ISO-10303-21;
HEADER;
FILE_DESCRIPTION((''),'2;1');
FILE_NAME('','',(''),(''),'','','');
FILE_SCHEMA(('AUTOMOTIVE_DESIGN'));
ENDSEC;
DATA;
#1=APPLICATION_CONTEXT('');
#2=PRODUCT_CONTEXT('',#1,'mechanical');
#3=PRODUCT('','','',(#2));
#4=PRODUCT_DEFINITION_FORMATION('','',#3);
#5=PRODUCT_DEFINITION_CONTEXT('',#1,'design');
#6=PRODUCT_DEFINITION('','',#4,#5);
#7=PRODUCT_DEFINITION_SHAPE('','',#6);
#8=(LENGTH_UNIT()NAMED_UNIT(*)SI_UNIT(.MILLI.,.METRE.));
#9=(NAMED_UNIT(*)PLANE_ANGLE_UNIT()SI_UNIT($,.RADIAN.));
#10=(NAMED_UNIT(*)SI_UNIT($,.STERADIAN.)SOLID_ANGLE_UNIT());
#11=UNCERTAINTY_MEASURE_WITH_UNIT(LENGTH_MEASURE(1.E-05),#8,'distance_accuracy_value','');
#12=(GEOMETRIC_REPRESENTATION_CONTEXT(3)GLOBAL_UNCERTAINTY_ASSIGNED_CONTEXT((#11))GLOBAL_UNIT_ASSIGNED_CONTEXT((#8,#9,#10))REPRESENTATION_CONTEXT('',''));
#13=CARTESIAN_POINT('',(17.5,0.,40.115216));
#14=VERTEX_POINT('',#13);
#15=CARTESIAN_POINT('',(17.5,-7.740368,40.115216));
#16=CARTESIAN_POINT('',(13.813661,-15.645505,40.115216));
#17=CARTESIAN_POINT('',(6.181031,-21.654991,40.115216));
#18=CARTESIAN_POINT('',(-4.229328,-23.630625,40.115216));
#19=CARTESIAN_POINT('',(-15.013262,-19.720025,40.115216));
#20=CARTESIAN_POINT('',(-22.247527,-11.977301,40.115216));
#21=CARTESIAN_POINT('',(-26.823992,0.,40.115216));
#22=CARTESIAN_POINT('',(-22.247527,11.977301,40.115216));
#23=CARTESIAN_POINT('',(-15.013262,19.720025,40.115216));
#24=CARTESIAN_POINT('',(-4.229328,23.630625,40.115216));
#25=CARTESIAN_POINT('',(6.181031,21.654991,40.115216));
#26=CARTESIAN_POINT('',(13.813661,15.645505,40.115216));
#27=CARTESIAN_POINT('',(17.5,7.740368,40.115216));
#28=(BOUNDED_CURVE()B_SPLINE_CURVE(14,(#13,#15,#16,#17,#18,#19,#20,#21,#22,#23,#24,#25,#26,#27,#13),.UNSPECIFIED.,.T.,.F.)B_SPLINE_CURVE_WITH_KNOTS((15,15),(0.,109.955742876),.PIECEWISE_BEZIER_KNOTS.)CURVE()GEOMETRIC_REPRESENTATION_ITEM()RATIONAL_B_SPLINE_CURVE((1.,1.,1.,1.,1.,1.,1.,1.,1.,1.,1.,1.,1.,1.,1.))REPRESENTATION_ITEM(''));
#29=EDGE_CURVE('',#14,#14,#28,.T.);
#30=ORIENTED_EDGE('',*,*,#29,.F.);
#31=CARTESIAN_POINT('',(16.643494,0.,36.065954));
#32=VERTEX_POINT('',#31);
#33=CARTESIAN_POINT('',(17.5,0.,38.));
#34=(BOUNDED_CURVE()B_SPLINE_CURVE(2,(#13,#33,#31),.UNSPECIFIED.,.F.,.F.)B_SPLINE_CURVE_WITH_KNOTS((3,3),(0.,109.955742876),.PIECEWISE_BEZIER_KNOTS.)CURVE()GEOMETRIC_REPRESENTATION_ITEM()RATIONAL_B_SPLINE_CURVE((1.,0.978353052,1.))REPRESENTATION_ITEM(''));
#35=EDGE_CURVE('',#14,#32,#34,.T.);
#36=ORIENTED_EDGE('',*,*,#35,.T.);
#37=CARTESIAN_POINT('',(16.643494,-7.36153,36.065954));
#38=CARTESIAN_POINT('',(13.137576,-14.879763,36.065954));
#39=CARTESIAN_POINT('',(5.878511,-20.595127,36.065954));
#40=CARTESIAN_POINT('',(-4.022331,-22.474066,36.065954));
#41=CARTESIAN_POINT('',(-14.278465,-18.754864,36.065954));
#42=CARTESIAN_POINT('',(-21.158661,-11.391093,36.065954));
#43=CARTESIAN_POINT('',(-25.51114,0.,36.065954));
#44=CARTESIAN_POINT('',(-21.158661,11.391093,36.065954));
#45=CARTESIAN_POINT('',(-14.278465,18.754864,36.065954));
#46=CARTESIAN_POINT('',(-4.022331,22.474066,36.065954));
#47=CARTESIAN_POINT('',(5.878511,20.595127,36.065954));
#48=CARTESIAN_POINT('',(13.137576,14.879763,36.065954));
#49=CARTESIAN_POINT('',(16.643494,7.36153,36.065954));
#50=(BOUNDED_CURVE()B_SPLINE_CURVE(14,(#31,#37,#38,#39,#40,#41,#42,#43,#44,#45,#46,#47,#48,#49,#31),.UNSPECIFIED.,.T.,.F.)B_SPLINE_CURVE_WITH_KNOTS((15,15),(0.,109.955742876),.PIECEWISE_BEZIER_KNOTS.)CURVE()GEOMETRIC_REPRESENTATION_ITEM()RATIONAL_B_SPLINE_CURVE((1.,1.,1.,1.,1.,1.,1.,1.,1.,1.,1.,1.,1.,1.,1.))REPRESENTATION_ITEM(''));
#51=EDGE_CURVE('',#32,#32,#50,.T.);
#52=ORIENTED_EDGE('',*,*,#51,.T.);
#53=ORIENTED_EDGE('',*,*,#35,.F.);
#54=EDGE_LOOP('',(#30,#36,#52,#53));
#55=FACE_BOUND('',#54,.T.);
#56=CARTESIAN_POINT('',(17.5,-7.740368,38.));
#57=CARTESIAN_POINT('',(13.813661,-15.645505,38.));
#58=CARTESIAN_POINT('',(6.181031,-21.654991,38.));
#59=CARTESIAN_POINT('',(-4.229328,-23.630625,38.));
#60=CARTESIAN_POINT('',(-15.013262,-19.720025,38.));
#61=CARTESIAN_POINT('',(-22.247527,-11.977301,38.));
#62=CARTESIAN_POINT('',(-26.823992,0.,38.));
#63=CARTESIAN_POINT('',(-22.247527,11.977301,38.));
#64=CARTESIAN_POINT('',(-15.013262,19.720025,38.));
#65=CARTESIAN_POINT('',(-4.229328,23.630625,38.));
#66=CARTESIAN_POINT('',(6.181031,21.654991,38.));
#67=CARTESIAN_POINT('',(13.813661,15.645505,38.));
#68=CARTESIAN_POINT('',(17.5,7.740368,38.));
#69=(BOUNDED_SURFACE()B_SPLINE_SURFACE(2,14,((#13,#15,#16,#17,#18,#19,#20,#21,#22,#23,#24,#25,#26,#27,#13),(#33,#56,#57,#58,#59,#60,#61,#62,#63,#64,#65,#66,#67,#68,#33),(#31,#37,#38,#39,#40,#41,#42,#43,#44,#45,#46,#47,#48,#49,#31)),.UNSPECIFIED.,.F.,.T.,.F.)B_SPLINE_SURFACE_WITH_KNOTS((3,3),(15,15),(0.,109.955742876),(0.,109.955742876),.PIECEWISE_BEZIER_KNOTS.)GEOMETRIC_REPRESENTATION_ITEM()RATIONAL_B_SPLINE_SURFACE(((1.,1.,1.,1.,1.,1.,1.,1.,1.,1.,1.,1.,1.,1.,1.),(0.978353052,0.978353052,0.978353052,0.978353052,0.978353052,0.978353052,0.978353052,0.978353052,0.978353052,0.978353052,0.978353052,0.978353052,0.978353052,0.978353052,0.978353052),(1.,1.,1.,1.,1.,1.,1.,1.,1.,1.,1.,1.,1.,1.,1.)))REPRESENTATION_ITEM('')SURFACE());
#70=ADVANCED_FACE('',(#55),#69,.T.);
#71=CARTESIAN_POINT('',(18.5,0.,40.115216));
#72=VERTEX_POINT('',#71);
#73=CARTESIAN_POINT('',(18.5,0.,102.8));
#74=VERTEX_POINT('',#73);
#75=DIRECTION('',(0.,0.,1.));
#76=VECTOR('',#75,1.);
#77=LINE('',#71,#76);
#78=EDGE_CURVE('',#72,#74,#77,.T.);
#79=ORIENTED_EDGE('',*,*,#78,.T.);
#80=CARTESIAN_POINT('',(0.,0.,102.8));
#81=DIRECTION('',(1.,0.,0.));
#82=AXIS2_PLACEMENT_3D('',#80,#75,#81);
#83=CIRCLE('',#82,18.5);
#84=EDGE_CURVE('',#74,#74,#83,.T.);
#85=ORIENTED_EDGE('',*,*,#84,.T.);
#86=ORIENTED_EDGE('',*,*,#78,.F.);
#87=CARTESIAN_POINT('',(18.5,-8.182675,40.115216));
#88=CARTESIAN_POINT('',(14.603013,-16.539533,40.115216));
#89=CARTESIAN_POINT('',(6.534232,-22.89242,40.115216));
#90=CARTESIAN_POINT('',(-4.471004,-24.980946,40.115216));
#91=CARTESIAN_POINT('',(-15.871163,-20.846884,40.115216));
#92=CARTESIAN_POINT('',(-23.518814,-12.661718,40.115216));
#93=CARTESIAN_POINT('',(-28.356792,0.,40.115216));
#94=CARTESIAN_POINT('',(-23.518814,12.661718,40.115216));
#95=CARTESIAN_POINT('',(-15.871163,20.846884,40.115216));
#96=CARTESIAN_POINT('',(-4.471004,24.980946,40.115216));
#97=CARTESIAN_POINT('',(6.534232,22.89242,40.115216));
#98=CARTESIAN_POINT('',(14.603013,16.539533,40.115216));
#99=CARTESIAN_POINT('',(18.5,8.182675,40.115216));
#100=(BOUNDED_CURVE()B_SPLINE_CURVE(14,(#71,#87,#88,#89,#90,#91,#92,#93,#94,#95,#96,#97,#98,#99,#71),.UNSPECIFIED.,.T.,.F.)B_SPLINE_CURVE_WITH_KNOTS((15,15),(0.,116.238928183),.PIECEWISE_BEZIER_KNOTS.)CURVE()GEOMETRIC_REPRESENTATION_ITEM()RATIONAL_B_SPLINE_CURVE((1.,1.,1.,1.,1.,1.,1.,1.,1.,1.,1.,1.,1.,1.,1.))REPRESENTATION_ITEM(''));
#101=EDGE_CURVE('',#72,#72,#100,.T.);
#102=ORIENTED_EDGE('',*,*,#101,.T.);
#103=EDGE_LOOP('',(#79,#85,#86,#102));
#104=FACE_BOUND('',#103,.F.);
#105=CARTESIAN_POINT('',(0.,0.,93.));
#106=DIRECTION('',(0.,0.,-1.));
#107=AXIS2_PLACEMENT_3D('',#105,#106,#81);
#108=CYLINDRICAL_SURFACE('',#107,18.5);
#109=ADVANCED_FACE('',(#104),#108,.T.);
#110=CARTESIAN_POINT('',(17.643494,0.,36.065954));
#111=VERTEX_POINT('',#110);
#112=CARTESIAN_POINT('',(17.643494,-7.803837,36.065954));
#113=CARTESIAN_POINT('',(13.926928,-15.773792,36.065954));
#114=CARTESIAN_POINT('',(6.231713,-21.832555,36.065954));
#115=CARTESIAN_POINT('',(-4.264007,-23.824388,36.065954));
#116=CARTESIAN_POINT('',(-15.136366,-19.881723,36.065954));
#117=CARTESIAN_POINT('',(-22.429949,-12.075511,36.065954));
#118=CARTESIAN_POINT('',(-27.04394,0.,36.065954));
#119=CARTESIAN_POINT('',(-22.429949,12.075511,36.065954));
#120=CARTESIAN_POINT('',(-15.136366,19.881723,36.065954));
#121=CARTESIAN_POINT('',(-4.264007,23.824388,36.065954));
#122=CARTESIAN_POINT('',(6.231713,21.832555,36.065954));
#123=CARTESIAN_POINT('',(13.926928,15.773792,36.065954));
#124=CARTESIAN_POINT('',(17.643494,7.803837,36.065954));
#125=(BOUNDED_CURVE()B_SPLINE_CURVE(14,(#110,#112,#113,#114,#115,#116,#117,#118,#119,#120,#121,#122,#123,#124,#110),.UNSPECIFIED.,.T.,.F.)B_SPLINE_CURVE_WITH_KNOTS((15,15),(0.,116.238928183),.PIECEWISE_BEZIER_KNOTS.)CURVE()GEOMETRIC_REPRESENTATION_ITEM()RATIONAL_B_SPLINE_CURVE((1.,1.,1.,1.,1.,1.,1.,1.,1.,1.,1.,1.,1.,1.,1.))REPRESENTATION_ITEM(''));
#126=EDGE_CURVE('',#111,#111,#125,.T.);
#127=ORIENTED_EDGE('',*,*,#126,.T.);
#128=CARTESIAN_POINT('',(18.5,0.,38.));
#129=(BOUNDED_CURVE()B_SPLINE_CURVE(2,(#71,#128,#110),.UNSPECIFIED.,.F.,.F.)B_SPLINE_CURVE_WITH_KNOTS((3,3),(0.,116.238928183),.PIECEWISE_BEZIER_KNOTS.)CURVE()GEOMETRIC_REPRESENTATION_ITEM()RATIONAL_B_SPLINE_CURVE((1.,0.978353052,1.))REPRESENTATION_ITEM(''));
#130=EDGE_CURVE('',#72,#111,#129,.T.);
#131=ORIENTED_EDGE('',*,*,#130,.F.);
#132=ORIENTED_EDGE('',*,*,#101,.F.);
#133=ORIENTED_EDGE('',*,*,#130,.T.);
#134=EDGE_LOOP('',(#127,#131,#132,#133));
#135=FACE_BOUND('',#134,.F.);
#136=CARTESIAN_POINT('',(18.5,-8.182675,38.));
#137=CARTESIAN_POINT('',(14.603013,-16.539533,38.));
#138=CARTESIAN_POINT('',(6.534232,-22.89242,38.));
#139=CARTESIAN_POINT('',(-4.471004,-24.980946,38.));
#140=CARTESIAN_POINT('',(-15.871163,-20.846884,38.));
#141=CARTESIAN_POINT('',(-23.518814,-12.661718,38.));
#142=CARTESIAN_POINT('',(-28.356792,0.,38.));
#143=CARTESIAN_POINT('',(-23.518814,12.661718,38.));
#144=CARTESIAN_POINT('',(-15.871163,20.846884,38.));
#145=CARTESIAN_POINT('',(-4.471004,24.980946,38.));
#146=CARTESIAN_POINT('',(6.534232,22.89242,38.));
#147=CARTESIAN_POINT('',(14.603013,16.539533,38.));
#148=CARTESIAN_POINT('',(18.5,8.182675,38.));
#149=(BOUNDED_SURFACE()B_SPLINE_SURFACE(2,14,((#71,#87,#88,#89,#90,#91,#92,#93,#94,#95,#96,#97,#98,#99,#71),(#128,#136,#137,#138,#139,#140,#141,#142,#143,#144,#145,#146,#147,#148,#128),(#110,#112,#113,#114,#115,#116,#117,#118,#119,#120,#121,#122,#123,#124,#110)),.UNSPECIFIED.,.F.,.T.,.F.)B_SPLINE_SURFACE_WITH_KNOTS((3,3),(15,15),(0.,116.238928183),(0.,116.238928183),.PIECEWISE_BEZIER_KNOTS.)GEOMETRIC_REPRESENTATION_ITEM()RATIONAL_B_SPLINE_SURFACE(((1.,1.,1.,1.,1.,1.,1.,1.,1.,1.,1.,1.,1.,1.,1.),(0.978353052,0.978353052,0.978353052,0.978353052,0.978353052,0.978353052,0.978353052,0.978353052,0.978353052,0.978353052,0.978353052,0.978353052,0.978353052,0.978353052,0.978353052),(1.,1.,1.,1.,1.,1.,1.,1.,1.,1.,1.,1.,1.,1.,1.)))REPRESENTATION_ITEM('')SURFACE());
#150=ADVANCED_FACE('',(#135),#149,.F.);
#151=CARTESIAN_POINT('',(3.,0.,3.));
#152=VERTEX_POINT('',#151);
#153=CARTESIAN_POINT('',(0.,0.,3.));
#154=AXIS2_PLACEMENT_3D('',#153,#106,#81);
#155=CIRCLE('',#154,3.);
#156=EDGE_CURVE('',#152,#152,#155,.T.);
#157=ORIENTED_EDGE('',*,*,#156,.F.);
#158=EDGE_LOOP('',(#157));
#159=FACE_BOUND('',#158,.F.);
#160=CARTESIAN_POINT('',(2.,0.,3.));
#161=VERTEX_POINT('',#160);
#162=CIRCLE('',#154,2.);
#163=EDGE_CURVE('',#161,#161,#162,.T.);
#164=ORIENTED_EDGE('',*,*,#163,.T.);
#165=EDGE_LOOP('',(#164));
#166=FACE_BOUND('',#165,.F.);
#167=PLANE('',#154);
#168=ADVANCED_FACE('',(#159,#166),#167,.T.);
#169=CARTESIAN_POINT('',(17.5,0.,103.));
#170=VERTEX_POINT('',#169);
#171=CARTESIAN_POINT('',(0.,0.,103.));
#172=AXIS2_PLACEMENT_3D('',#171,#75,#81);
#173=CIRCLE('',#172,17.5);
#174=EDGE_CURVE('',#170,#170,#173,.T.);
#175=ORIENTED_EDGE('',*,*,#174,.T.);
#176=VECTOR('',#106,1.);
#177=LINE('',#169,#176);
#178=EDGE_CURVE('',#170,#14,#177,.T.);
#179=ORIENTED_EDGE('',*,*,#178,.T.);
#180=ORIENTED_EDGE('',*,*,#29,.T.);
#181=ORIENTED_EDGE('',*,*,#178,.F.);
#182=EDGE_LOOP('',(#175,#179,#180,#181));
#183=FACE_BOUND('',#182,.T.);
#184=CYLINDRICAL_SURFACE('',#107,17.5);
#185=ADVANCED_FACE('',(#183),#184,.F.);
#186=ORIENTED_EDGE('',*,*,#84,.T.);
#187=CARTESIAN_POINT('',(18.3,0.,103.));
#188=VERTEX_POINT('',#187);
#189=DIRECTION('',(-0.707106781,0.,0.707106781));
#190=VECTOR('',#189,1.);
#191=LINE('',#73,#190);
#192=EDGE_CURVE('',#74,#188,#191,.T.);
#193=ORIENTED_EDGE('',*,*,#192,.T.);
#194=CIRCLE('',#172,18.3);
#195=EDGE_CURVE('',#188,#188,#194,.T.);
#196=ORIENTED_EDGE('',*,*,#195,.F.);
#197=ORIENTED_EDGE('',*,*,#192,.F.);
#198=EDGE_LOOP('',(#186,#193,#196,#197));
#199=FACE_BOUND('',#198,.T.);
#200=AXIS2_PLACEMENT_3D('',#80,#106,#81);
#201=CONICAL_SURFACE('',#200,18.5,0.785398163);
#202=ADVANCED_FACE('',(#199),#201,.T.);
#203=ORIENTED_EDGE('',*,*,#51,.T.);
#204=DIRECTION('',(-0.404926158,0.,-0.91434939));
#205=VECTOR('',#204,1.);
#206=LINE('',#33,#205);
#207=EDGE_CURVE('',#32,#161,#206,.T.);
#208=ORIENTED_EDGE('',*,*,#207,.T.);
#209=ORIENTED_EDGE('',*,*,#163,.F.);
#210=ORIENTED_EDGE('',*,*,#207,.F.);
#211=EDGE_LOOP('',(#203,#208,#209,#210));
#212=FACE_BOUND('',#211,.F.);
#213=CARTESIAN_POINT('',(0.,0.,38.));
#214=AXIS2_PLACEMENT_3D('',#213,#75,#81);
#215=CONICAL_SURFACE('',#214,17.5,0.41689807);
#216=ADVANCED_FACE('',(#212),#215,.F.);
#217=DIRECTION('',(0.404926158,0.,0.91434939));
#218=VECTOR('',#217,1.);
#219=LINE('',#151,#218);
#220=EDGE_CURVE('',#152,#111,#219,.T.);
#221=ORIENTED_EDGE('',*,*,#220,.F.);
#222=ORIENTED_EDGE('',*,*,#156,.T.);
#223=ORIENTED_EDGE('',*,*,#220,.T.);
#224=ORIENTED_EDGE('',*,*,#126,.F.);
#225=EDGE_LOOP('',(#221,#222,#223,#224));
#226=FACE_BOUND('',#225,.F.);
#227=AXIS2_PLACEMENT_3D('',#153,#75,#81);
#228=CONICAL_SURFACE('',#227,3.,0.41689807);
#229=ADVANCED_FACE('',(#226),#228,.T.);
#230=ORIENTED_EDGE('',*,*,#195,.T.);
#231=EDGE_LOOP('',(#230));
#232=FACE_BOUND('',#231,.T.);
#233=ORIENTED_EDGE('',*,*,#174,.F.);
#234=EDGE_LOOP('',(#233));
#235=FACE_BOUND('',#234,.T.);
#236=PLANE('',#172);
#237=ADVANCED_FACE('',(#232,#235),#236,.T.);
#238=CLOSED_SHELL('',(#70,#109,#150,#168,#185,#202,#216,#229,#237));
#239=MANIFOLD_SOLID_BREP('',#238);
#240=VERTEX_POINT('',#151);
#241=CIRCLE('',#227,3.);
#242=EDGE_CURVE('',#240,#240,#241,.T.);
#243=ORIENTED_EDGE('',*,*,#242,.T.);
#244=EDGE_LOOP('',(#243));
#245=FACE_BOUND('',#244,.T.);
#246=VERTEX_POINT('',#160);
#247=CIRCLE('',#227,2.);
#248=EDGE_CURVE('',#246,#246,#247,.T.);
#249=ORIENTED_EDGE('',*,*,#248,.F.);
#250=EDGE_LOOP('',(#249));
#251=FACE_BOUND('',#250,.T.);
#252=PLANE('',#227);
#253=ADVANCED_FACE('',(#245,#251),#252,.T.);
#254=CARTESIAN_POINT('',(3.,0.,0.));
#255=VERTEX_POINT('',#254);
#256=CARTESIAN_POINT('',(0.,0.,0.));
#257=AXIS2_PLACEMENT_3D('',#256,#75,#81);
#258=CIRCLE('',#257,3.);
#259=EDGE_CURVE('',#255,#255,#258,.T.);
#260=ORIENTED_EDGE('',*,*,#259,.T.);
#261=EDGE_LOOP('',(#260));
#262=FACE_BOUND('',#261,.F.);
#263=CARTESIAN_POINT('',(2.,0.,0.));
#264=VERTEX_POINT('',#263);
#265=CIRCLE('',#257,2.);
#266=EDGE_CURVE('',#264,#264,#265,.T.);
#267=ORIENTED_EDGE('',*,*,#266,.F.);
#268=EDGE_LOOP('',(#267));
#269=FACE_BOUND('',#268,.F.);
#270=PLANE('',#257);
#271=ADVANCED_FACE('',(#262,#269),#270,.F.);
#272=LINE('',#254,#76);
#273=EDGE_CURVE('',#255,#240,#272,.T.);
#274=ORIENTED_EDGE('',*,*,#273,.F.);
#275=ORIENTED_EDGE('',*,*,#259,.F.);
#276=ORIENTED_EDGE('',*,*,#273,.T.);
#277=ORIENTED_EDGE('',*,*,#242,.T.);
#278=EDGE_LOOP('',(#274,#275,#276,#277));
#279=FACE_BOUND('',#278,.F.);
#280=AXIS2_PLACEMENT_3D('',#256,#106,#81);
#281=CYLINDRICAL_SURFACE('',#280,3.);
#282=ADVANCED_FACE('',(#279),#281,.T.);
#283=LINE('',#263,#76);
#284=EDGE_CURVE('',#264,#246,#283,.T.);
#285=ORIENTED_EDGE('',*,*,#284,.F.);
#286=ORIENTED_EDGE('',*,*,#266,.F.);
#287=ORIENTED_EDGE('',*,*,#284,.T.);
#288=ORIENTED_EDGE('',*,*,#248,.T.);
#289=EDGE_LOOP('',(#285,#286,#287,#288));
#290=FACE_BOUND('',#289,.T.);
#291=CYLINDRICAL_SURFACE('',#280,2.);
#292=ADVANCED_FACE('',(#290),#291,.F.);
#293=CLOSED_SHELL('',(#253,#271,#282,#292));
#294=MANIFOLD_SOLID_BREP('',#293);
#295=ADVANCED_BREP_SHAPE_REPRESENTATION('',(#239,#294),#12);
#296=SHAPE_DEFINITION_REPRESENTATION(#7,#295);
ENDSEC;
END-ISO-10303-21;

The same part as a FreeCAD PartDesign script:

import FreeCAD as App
import Part
import Sketcher
from FreeCAD import Vector


def edges_at(feature, points):
    """Names of the edges that pass closest to the given points."""
    edges = feature.Shape.Edges
    near = lambda p: min(range(len(edges)), key=lambda i: edges[i].distToShape(Part.Vertex(*p))[0])
    return sorted({f"Edge{near(p) + 1}" for p in points})

doc = App.newDocument("Part")
body = doc.addObject("PartDesign::Body", "Body")

# Sketch on XY plane
sketch1 = body.newObject("Sketcher::SketchObject", "Sketch")
sketch1.AttachmentSupport = (doc.getObject("XY_Plane"), [""])
sketch1.MapMode = "FlatFace"
sketch1.addGeometry(Part.Circle(Vector(0, 0, 0), Vector(0, 0, 1), 3), False)
sketch1.addGeometry(Part.Circle(Vector(0, 0, 0), Vector(0, 0, 1), 2), False)
sketch1.addConstraint(Sketcher.Constraint("Coincident", 0, 3, -1, 1))
sketch1.addConstraint(Sketcher.Constraint("Coincident", 1, 3, -1, 1))
sketch1.addConstraint(Sketcher.Constraint("Diameter", 0, 6.0))
sketch1.addConstraint(Sketcher.Constraint("Diameter", 1, 4.0))
pad1 = body.newObject("PartDesign::Pad", "Pad")
pad1.Profile = sketch1
pad1.Length = 3
body2 = doc.addObject("PartDesign::Body", "Body001")

# Sketch on XZ plane
sketch2 = body2.newObject("Sketcher::SketchObject", "Sketch001")
sketch2.AttachmentSupport = (doc.getObject("XZ_Plane001"), [""])
sketch2.MapMode = "FlatFace"
sketch2.addGeometry(Part.LineSegment(Vector(2, 3, 0), Vector(3, 3, 0)), False)
sketch2.addGeometry(Part.LineSegment(Vector(3, 3, 0), Vector(18.5, 38, 0)), False)
sketch2.addGeometry(Part.LineSegment(Vector(18.5, 38, 0), Vector(17.5, 38, 0)), False)
sketch2.addGeometry(Part.LineSegment(Vector(17.5, 38, 0), Vector(2, 3, 0)), False)
sketch2.addConstraint(Sketcher.Constraint("Coincident", 0, 2, 1, 1))
sketch2.addConstraint(Sketcher.Constraint("Coincident", 1, 2, 2, 1))
sketch2.addConstraint(Sketcher.Constraint("Coincident", 2, 2, 3, 1))
sketch2.addConstraint(Sketcher.Constraint("Coincident", 3, 2, 0, 1))
sketch2.addConstraint(Sketcher.Constraint("Horizontal", 0))
sketch2.addConstraint(Sketcher.Constraint("Horizontal", 2))
sketch2.addConstraint(Sketcher.Constraint("Parallel", 1, 3))
sketch2.addConstraint(Sketcher.Constraint("DistanceX", 0, 1, 0, 2, 1.0))
sketch2.addConstraint(Sketcher.Constraint("DistanceX", -1, 1, 0, 2, 3.0))
sketch2.addConstraint(Sketcher.Constraint("DistanceY", -1, 1, 0, 2, 3.0))
sketch2.addConstraint(Sketcher.Constraint("DistanceY", -1, 1, 1, 2, 38.0))
sketch2.addConstraint(Sketcher.Constraint("DistanceX", -1, 1, 1, 2, 18.5))
revolution = body2.newObject("PartDesign::Revolution", "Revolution")
revolution.Profile = sketch2
revolution.ReferenceAxis = (sketch2, ["V_Axis"])
revolution.Angle = 360

# Sketch on XY plane
sketch3 = body2.newObject("Sketcher::SketchObject", "Sketch002")
sketch3.AttachmentSupport = (doc.getObject("XY_Plane001"), [""])
sketch3.MapMode = "FlatFace"
sketch3.AttachmentOffset = App.Placement(Vector(0, 0, 38), App.Rotation())
sketch3.addGeometry(Part.Circle(Vector(0, 0, 0), Vector(0, 0, 1), 18.5), False)
sketch3.addGeometry(Part.Circle(Vector(0, 0, 0), Vector(0, 0, 1), 17.5), False)
sketch3.addConstraint(Sketcher.Constraint("Coincident", 0, 3, -1, 1))
sketch3.addConstraint(Sketcher.Constraint("Coincident", 1, 3, -1, 1))
sketch3.addConstraint(Sketcher.Constraint("Diameter", 0, 37.0))
sketch3.addConstraint(Sketcher.Constraint("Diameter", 1, 35.0))
pad2 = body2.newObject("PartDesign::Pad", "Pad001")
pad2.Profile = sketch3
pad2.Length = 55
doc.recompute()

fillet = body2.newObject("PartDesign::Fillet", "Fillet")
fillet.Base = (pad2, edges_at(pad2, [(-18.5, 0, 38), (-17.5, 0, 38)]))
fillet.Radius = 10

# Sketch on XY plane
sketch4 = body2.newObject("Sketcher::SketchObject", "Sketch003")
sketch4.AttachmentSupport = (doc.getObject("XY_Plane001"), [""])
sketch4.MapMode = "FlatFace"
sketch4.AttachmentOffset = App.Placement(Vector(0, 0, 93), App.Rotation())
sketch4.addGeometry(Part.Circle(Vector(0, 0, 0), Vector(0, 0, 1), 18.5), False)
sketch4.addGeometry(Part.Circle(Vector(0, 0, 0), Vector(0, 0, 1), 17.5), False)
sketch4.addConstraint(Sketcher.Constraint("Coincident", 0, 3, -1, 1))
sketch4.addConstraint(Sketcher.Constraint("Coincident", 1, 3, -1, 1))
sketch4.addConstraint(Sketcher.Constraint("Diameter", 0, 37.0))
sketch4.addConstraint(Sketcher.Constraint("Diameter", 1, 35.0))
pad3 = body2.newObject("PartDesign::Pad", "Pad002")
pad3.Profile = sketch4
pad3.Length = 10
doc.recompute()

chamfer = body2.newObject("PartDesign::Chamfer", "Chamfer")
chamfer.Base = (pad3, edges_at(pad3, [(-18.5, 0, 103)]))
chamfer.Size = 0.2

doc.recompute()
